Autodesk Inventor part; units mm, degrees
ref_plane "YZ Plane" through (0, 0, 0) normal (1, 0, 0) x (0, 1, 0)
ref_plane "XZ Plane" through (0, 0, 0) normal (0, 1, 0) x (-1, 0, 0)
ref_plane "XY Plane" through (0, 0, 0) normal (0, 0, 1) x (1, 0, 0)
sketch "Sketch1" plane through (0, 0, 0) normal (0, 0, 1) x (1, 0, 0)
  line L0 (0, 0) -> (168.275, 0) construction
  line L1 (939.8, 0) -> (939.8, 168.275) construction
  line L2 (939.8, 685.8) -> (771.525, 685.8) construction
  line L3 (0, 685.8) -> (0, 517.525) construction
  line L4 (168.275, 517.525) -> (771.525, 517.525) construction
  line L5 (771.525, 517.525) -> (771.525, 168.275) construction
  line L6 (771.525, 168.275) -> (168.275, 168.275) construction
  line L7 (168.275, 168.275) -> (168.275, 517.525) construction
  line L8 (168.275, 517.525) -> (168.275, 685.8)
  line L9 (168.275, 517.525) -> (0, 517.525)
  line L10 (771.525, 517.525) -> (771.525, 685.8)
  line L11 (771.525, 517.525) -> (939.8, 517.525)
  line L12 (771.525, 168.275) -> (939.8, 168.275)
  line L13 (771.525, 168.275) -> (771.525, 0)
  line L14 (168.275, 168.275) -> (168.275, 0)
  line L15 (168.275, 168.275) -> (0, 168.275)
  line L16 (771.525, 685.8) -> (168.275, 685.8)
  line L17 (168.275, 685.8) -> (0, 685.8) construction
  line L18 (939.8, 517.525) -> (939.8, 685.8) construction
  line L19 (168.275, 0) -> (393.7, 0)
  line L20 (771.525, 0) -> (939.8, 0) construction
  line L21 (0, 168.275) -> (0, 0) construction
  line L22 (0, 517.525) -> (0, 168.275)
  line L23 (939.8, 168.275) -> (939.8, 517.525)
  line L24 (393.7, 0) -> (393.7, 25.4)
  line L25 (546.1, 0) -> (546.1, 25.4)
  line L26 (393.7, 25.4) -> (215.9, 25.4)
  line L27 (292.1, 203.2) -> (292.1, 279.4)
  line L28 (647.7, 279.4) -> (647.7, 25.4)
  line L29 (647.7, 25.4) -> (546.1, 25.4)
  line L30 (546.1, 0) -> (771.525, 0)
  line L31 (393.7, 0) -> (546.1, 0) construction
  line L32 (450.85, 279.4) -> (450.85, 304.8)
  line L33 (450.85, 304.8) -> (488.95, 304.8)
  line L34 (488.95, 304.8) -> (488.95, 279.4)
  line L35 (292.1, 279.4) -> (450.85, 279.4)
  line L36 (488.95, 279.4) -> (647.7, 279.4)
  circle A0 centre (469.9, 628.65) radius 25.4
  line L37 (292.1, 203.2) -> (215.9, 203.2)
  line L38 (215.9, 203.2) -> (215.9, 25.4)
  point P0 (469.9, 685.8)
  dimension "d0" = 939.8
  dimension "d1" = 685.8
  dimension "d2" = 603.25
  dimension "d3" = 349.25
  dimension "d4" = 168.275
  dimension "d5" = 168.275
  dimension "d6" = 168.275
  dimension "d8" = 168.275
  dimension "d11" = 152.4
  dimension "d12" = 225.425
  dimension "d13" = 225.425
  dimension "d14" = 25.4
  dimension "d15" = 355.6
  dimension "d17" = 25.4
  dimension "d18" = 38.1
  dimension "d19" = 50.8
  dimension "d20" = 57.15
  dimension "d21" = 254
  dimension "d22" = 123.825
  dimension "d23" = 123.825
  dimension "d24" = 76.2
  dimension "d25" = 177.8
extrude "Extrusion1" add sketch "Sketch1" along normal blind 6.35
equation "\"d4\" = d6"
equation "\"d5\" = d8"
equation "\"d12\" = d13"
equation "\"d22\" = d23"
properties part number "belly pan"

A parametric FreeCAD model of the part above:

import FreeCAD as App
import Part
import Sketcher

V = App.Vector
Q = App.Units.Quantity

doc = App.newDocument("Part")
params = doc.addObject("Spreadsheet::Sheet", "Params")
for row, (alias, value) in enumerate([
    ("sketch1_diameter", "2 in"),
    ("sketch1_width", "7 in"),
    ("sketch1_width2", "3 in"),
    ("sketch1_height", "1 in"),
    ("sketch1_width3", "1.5 in"),
    ("pad1_length", "0.25 in"),
], start=1):
    params.set(f"A{row}", alias)
    params.set(f"B{row}", "=" + value)
    params.setAlias(f"B{row}", alias)

body = doc.addObject("PartDesign::Body", "Body")

sketch1 = doc.addObject("Sketcher::SketchObject", "Sketch")
body.addObject(sketch1)
sketch1.AttachmentSupport = (doc.XY_Plane, [""])
sketch1.MapMode = "FlatFace"
sketch1.addGeometry(Part.LineSegment(V(168, 686, 0), V(168, 518, 0)), False)
sketch1.addGeometry(Part.LineSegment(V(168, 518, 0), V(0, 518, 0)), False)
sketch1.addGeometry(Part.LineSegment(V(0, 518, 0), V(0, 168, 0)), False)
sketch1.addGeometry(Part.LineSegment(V(0, 168, 0), V(168, 168, 0)), False)
sketch1.addGeometry(Part.LineSegment(V(168, 168, 0), V(168, 0, 0)), False)
sketch1.addGeometry(Part.LineSegment(V(168, 0, 0), V(394, 0, 0)), False)
sketch1.addGeometry(Part.LineSegment(V(394, 0, 0), V(394, 25, 0)), False)
sketch1.addGeometry(Part.LineSegment(V(394, 25, 0), V(216, 25, 0)), False)
sketch1.addGeometry(Part.LineSegment(V(216, 25, 0), V(216, 203, 0)), False)
sketch1.addGeometry(Part.LineSegment(V(216, 203, 0), V(292, 203, 0)), False)
sketch1.addGeometry(Part.LineSegment(V(292, 203, 0), V(292, 279, 0)), False)
sketch1.addGeometry(Part.LineSegment(V(292, 279, 0), V(451, 279, 0)), False)
sketch1.addGeometry(Part.LineSegment(V(451, 279, 0), V(451, 305, 0)), False)
sketch1.addGeometry(Part.LineSegment(V(451, 305, 0), V(489, 305, 0)), False)
sketch1.addGeometry(Part.LineSegment(V(489, 305, 0), V(489, 279, 0)), False)
sketch1.addGeometry(Part.LineSegment(V(489, 279, 0), V(648, 279, 0)), False)
sketch1.addGeometry(Part.LineSegment(V(648, 279, 0), V(648, 25, 0)), False)
sketch1.addGeometry(Part.LineSegment(V(648, 25, 0), V(546, 25, 0)), False)
sketch1.addGeometry(Part.LineSegment(V(546, 25, 0), V(546, 0, 0)), False)
sketch1.addGeometry(Part.LineSegment(V(546, 0, 0), V(772, 0, 0)), False)
sketch1.addGeometry(Part.LineSegment(V(772, 0, 0), V(772, 168, 0)), False)
sketch1.addGeometry(Part.LineSegment(V(772, 168, 0), V(940, 168, 0)), False)
sketch1.addGeometry(Part.LineSegment(V(940, 168, 0), V(940, 518, 0)), False)
sketch1.addGeometry(Part.LineSegment(V(940, 518, 0), V(772, 518, 0)), False)
sketch1.addGeometry(Part.LineSegment(V(772, 518, 0), V(772, 686, 0)), False)
sketch1.addGeometry(Part.LineSegment(V(772, 686, 0), V(168, 686, 0)), False)
sketch1.addGeometry(Part.Circle(V(470, 629, 0), V(0, 0, 1), 25), False)
sketch1.addConstraint(Sketcher.Constraint("Coincident", 0, 2, 1, 1))
sketch1.addConstraint(Sketcher.Constraint("Coincident", 1, 2, 2, 1))
sketch1.addConstraint(Sketcher.Constraint("Coincident", 2, 2, 3, 1))
sketch1.addConstraint(Sketcher.Constraint("Coincident", 3, 2, 4, 1))
sketch1.addConstraint(Sketcher.Constraint("Coincident", 4, 2, 5, 1))
sketch1.addConstraint(Sketcher.Constraint("Coincident", 5, 2, 6, 1))
sketch1.addConstraint(Sketcher.Constraint("Coincident", 6, 2, 7, 1))
sketch1.addConstraint(Sketcher.Constraint("Coincident", 7, 2, 8, 1))
sketch1.addConstraint(Sketcher.Constraint("Coincident", 8, 2, 9, 1))
sketch1.addConstraint(Sketcher.Constraint("Coincident", 9, 2, 10, 1))
sketch1.addConstraint(Sketcher.Constraint("Coincident", 10, 2, 11, 1))
sketch1.addConstraint(Sketcher.Constraint("Coincident", 11, 2, 12, 1))
sketch1.addConstraint(Sketcher.Constraint("Coincident", 12, 2, 13, 1))
sketch1.addConstraint(Sketcher.Constraint("Coincident", 13, 2, 14, 1))
sketch1.addConstraint(Sketcher.Constraint("Coincident", 14, 2, 15, 1))
sketch1.addConstraint(Sketcher.Constraint("Coincident", 15, 2, 16, 1))
sketch1.addConstraint(Sketcher.Constraint("Coincident", 16, 2, 17, 1))
sketch1.addConstraint(Sketcher.Constraint("Coincident", 17, 2, 18, 1))
sketch1.addConstraint(Sketcher.Constraint("Coincident", 18, 2, 19, 1))
sketch1.addConstraint(Sketcher.Constraint("Coincident", 19, 2, 20, 1))
sketch1.addConstraint(Sketcher.Constraint("Coincident", 20, 2, 21, 1))
sketch1.addConstraint(Sketcher.Constraint("Coincident", 21, 2, 22, 1))
sketch1.addConstraint(Sketcher.Constraint("Coincident", 22, 2, 23, 1))
sketch1.addConstraint(Sketcher.Constraint("Coincident", 23, 2, 24, 1))
sketch1.addConstraint(Sketcher.Constraint("Coincident", 24, 2, 25, 1))
sketch1.addConstraint(Sketcher.Constraint("Coincident", 25, 2, 0, 1))
sketch1.addConstraint(Sketcher.Constraint("Vertical", 0))
sketch1.addConstraint(Sketcher.Constraint("Horizontal", 1))
sketch1.addConstraint(Sketcher.Constraint("Vertical", 2))
sketch1.addConstraint(Sketcher.Constraint("Horizontal", 3))
sketch1.addConstraint(Sketcher.Constraint("Vertical", 4))
sketch1.addConstraint(Sketcher.Constraint("Horizontal", 5))
sketch1.addConstraint(Sketcher.Constraint("Vertical", 6))
sketch1.addConstraint(Sketcher.Constraint("Horizontal", 7))
sketch1.addConstraint(Sketcher.Constraint("Vertical", 8))
sketch1.addConstraint(Sketcher.Constraint("Horizontal", 9))
sketch1.addConstraint(Sketcher.Constraint("Vertical", 10))
sketch1.addConstraint(Sketcher.Constraint("Horizontal", 11))
sketch1.addConstraint(Sketcher.Constraint("Vertical", 12))
sketch1.addConstraint(Sketcher.Constraint("Horizontal", 13))
sketch1.addConstraint(Sketcher.Constraint("Vertical", 14))
sketch1.addConstraint(Sketcher.Constraint("Horizontal", 15))
sketch1.addConstraint(Sketcher.Constraint("Vertical", 16))
sketch1.addConstraint(Sketcher.Constraint("Horizontal", 17))
sketch1.addConstraint(Sketcher.Constraint("Vertical", 18))
sketch1.addConstraint(Sketcher.Constraint("Horizontal", 19))
sketch1.addConstraint(Sketcher.Constraint("Vertical", 20))
sketch1.addConstraint(Sketcher.Constraint("Horizontal", 21))
sketch1.addConstraint(Sketcher.Constraint("Vertical", 22))
sketch1.addConstraint(Sketcher.Constraint("Horizontal", 23))
sketch1.addConstraint(Sketcher.Constraint("Vertical", 24))
sketch1.addConstraint(Sketcher.Constraint("Horizontal", 25))
sketch1.addConstraint(Sketcher.Constraint("PointOnObject", 1, 2, -2))
sketch1.addConstraint(Sketcher.Constraint("PointOnObject", 4, 2, -1))
sketch1.addConstraint(Sketcher.Constraint("PointOnObject", 18, 2, -1))
sketch1.addConstraint(Sketcher.Constraint("Horizontal", 11, 2, 14, 2))
sketch1.addConstraint(Sketcher.Constraint("Horizontal", 7, 2, 16, 2))
sketch1.addConstraint(Sketcher.Constraint("Horizontal", 3, 2, 20, 2))
sketch1.addConstraint(Sketcher.Constraint("Horizontal", 1, 2, 22, 2))
sketch1.addConstraint(Sketcher.Constraint("Vertical", 0, 2, 3, 2))
sketch1.addConstraint(Sketcher.Constraint("Vertical", 20, 2, 23, 2))
sketch1.addConstraint(Sketcher.Constraint("Equal", 11, 15))
sketch1.addConstraint(Sketcher.Constraint("Equal", 5, 19))
sketch1.addConstraint(Sketcher.Constraint("Equal", 3, 21))
sketch1.addConstraint(Sketcher.Constraint("Equal", 23, 0))
sketch1.addConstraint(Sketcher.Constraint("Equal", 0, 4))
sketch1.addConstraint(Sketcher.Constraint("Equal", 7, 8))
sketch1.addConstraint(Sketcher.Constraint("Equal", 9, 10))
sketch1.addConstraint(Sketcher.Constraint("Equal", 6, 12))
sketch1.addConstraint(Sketcher.Constraint("Diameter", 26, Q("2 in")))
sketch1.addConstraint(Sketcher.Constraint("DistanceX", 7, 2, 7, 1, Q("7 in")))
sketch1.addConstraint(Sketcher.Constraint("DistanceX", 9, 1, 9, 2, Q("3 in")))
sketch1.addConstraint(Sketcher.Constraint("DistanceY", 6, 1, 6, 2, Q("1 in")))
sketch1.addConstraint(Sketcher.Constraint("DistanceX", 13, 1, 13, 2, Q("1.5 in")))
sketch1.addConstraint(Sketcher.Constraint("DistanceX", -1, 1, 21, 2, Q("37 in")))
sketch1.addConstraint(Sketcher.Constraint("DistanceY", -1, 1, 24, 2, Q("27 in")))
sketch1.addConstraint(Sketcher.Constraint("DistanceX", 5, 2, 26, 3, Q("3 in")))
sketch1.addConstraint(Sketcher.Constraint("DistanceX", 10, 2, 15, 2, Q("14 in")))
sketch1.addConstraint(Sketcher.Constraint("DistanceX", 6, 2, 17, 2, Q("6 in")))
sketch1.addConstraint(Sketcher.Constraint("DistanceX", 25, 2, 25, 1, Q("23.75 in")))
sketch1.addConstraint(Sketcher.Constraint("DistanceY", 26, 3, 24, 2, Q("2.25 in")))
sketch1.setExpression("Constraints[69]", "Params.sketch1_diameter")
sketch1.setExpression("Constraints[70]", "Params.sketch1_width")
sketch1.setExpression("Constraints[71]", "Params.sketch1_width2")
sketch1.setExpression("Constraints[72]", "Params.sketch1_height")
sketch1.setExpression("Constraints[73]", "Params.sketch1_width3")
pad1 = doc.addObject("PartDesign::Pad", "Pad")
body.addObject(pad1)
pad1.Profile = sketch1
pad1.setExpression("Length", "Params.pad1_length")

doc.recompute()
